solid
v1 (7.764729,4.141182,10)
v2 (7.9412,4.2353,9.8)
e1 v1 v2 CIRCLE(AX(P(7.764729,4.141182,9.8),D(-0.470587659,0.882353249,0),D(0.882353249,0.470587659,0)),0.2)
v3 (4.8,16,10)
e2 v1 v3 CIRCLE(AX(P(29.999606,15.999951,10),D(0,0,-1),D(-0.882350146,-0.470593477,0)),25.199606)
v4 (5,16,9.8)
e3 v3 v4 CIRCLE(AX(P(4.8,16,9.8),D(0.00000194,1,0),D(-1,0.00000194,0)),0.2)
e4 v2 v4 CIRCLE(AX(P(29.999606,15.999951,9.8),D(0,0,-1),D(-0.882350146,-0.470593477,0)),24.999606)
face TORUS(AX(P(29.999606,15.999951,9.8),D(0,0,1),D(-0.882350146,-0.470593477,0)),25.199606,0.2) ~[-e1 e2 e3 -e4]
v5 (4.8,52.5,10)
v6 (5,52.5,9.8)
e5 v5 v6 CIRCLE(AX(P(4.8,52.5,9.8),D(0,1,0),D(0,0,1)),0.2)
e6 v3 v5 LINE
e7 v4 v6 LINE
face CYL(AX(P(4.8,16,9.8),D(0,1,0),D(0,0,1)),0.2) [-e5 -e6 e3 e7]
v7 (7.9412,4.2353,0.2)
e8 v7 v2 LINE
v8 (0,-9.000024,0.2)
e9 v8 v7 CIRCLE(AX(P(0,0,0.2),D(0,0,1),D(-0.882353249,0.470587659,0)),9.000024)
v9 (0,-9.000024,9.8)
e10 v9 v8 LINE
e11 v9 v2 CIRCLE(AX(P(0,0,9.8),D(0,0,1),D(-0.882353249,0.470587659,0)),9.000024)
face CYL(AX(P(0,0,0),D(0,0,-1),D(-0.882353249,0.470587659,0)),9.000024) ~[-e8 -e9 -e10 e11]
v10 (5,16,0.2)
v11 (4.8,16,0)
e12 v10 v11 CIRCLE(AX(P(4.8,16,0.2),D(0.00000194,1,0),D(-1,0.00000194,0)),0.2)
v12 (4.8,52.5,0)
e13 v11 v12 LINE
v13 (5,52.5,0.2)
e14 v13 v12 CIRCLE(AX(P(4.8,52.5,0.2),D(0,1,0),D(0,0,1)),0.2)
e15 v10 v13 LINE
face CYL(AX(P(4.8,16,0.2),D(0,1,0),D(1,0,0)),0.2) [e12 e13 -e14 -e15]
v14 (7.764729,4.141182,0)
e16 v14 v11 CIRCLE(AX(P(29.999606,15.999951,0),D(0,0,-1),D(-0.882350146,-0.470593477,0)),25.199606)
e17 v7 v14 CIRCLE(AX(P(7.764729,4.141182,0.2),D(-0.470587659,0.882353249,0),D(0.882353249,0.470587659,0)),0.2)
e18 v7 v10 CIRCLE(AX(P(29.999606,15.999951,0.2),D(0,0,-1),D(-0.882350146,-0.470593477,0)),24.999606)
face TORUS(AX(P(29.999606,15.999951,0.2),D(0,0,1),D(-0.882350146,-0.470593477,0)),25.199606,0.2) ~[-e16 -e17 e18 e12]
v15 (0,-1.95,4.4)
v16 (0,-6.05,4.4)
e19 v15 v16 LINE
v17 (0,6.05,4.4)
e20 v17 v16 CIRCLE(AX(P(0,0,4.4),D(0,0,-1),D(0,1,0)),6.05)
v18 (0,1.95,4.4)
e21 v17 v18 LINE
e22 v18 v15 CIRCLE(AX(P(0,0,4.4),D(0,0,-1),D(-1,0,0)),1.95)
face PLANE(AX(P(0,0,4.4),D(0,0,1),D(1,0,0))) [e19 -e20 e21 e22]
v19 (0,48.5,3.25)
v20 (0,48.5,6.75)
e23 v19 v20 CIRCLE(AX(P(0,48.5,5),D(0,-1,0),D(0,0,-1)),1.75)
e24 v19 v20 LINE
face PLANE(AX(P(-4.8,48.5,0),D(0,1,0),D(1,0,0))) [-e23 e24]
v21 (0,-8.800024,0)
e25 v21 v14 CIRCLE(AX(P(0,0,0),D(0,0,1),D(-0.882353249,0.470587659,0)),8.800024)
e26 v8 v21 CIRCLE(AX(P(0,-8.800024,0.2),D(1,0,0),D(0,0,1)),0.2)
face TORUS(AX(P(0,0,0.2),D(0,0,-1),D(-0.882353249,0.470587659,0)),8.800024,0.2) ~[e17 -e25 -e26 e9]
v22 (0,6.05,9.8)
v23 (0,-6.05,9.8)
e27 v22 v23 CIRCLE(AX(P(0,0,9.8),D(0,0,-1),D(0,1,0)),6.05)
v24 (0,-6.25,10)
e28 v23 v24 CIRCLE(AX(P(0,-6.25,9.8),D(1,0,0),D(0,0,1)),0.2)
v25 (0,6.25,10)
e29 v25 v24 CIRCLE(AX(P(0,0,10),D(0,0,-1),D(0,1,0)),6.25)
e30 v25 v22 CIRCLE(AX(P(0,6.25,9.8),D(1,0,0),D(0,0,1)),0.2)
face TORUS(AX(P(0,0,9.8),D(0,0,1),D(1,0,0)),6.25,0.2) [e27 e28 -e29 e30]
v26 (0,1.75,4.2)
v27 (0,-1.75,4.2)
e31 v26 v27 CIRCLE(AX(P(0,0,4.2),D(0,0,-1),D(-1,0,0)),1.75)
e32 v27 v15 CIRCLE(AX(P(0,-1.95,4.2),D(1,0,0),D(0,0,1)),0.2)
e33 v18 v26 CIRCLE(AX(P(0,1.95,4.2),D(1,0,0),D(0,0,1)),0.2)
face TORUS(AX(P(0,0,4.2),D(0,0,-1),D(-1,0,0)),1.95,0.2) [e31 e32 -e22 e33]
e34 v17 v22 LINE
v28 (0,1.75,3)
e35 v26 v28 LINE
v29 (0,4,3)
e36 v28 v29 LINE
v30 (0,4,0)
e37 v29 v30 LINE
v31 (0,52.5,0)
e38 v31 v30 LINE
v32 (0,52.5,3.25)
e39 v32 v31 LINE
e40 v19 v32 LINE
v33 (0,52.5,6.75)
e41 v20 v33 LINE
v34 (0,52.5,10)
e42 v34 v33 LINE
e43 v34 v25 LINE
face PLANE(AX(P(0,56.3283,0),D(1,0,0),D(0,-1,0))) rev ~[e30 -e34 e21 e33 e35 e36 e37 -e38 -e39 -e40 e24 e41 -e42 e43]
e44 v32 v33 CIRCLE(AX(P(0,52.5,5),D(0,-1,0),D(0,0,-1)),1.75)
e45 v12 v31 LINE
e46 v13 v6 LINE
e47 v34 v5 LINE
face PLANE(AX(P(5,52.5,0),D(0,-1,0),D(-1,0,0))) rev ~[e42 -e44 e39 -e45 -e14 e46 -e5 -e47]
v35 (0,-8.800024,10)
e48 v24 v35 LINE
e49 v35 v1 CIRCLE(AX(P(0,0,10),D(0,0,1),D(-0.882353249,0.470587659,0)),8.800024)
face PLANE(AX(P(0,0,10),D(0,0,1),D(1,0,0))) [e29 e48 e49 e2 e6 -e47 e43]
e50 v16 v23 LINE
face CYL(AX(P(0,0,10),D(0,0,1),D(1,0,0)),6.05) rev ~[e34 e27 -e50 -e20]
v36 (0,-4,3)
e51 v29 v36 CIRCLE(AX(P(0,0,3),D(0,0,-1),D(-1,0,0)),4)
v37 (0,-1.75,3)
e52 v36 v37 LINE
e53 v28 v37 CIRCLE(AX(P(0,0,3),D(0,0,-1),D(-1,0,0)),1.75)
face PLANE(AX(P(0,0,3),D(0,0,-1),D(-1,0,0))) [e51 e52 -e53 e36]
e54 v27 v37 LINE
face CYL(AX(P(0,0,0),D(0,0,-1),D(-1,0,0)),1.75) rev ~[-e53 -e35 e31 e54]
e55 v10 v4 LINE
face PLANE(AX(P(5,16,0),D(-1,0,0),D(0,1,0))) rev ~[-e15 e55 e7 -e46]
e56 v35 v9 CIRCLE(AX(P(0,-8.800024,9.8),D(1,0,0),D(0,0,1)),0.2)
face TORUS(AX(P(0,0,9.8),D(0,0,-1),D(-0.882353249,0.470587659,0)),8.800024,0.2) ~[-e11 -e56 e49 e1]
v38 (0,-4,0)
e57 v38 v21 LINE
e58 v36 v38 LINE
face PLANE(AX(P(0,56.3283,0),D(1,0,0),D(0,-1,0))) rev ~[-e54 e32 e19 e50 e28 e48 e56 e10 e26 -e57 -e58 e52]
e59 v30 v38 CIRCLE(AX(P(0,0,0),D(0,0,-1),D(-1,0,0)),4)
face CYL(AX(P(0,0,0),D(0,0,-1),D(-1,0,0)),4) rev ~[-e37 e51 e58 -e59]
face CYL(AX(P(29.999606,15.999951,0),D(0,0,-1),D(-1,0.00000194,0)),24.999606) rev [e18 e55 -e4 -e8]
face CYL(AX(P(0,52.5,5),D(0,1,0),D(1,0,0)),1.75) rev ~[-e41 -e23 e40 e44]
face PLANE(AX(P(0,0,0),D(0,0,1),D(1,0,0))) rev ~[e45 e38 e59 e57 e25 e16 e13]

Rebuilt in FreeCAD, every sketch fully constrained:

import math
import FreeCAD as App
import Part
import Sketcher
from FreeCAD import Vector
Q = App.Units.Quantity


def edges_at(feature, points):
    """Names of the edges that pass closest to the given points."""
    edges = feature.Shape.Edges
    near = lambda p: min(range(len(edges)), key=lambda i: edges[i].distToShape(Part.Vertex(*p))[0])
    return sorted({f"Edge{near(p) + 1}" for p in points})

doc = App.newDocument("Part")
body = doc.addObject("PartDesign::Body", "Body")

# Sketch on XY plane
sketch1 = doc.addObject("Sketcher::SketchObject", "Sketch")
body.addObject(sketch1)
sketch1.AttachmentSupport = (doc.XY_Plane, [""])
sketch1.MapMode = "FlatFace"
sketch1.addGeometry([
    Part.LineSegment(Vector(5, 16, 0), Vector(5, 52, 0)),  # 0
    Part.LineSegment(Vector(5, 52, 0), Vector(-5, 52, 0)),  # 1
    Part.LineSegment(Vector(-5, 52, 0), Vector(-5, 16, 0)),  # 2
    Part.ArcOfCircle(Part.Circle(Vector(-30, 16, 0), Vector(0, 0, 1), 25), math.radians(-28), math.radians(0)),  # 3
    Part.ArcOfCircle(Part.Circle(Vector(0, 0, 0), Vector(0, 0, 1), 9), math.radians(152), math.radians(388)),  # 4
    Part.ArcOfCircle(Part.Circle(Vector(30, 16, 0), Vector(0, 0, 1), 25), math.radians(180), math.radians(208)),  # 5
], False)
sketch1.addConstraint([
    Sketcher.Constraint("Coincident", 0, 2, 1, 1),
    Sketcher.Constraint("Coincident", 1, 2, 2, 1),
    Sketcher.Constraint("Tangent", 2, 2, 3, 2),
    Sketcher.Constraint("Tangent", 3, 1, 4, 1),
    Sketcher.Constraint("Tangent", 4, 2, 5, 2),
    Sketcher.Constraint("Tangent", 5, 1, 0, 1),
    Sketcher.Constraint("Vertical", 0),
    Sketcher.Constraint("Horizontal", 1),
    Sketcher.Constraint("Vertical", 2),
    Sketcher.Constraint("Coincident", 4, 3, -1, 1),
    Sketcher.Constraint("Equal", 3, 5),
    Sketcher.Constraint("Horizontal", 3, 3, 5, 3),
    Sketcher.Constraint("Radius", 3, Q("25 mm")),
    Sketcher.Constraint("Radius", 4, Q("9 mm")),
    Sketcher.Constraint("DistanceX", -1, 1, 0, 2, Q("5 mm")),
    Sketcher.Constraint("DistanceY", -1, 1, 0, 2, Q("52.5 mm")),
])
pad1 = doc.addObject("PartDesign::Pad", "Pad")
body.addObject(pad1)
pad1.Profile = sketch1
pad1.Length = 10

# Sketch on XY plane
sketch2 = doc.addObject("Sketcher::SketchObject", "Sketch001")
body.addObject(sketch2)
sketch2.AttachmentSupport = (doc.XY_Plane, [""])
sketch2.MapMode = "FlatFace"
sketch2.AttachmentOffset = App.Placement(Vector(0, 0, 10), App.Rotation())
sketch2.addGeometry(Part.Circle(Vector(0, 0, 0), Vector(0, 0, 1), 6), False)
sketch2.addConstraint([
    Sketcher.Constraint("Coincident", 0, 3, -1, 1),
    Sketcher.Constraint("Diameter", 0, Q("12.1 mm")),
])
pocket1 = doc.addObject("PartDesign::Pocket", "Pocket")
body.addObject(pocket1)
pocket1.Profile = sketch2
pocket1.Length = 5.6
doc.recompute()

fillet = doc.addObject("PartDesign::Fillet", "Fillet")
body.addObject(fillet)
fillet.Base = (pocket1, edges_at(pocket1, [(-6.05, 0, 10)]))
fillet.Radius = 0.2
doc.recompute()

fillet2 = doc.addObject("PartDesign::Fillet", "Fillet001")
body.addObject(fillet2)
fillet2.Base = (fillet, edges_at(fillet, [
    (5, 34.25, 10),
    (0, -9, 10),
    (-5.746, 9.937, 10),
    (-5, 34.25, 10),
    (5.746, 9.937, 10),
    (5, 34.25, 0),
    (0, -9, 0),
    (-5.746, 9.937, 0),
    (-5, 34.25, 0),
    (5.746, 9.937, 0),
]))
fillet2.Radius = 0.2

# Sketch on XY plane
sketch3 = doc.addObject("Sketcher::SketchObject", "Sketch002")
body.addObject(sketch3)
sketch3.AttachmentSupport = (doc.XY_Plane, [""])
sketch3.MapMode = "FlatFace"
sketch3.addGeometry(Part.Circle(Vector(0, 0, 0), Vector(0, 0, 1), 1.8), False)
sketch3.addConstraint([
    Sketcher.Constraint("Coincident", 0, 3, -1, 1),
    Sketcher.Constraint("Diameter", 0, Q("3.5 mm")),
])
pocket2 = doc.addObject("PartDesign::Pocket", "Pocket001")
body.addObject(pocket2)
pocket2.Profile = sketch3
pocket2.Type = "UpToFirst"
pocket2.Reversed = True
doc.recompute()

fillet3 = doc.addObject("PartDesign::Fillet", "Fillet002")
body.addObject(fillet3)
fillet3.Base = (pocket2, edges_at(pocket2, [(1.75, 0, 0), (1.75, 0, 4.4)]))
fillet3.Radius = 0.2

# Sketch on XZ plane
sketch4 = doc.addObject("Sketcher::SketchObject", "Sketch003")
body.addObject(sketch4)
sketch4.AttachmentSupport = (doc.XZ_Plane, [""])
sketch4.MapMode = "FlatFace"
sketch4.AttachmentOffset = App.Placement(Vector(0, 0, -52.5), App.Rotation())
sketch4.addGeometry(Part.Circle(Vector(0, 5, 0), Vector(0, 0, 1), 1.8), False)
sketch4.addConstraint([
    Sketcher.Constraint("PointOnObject", 0, 3, -2),
    Sketcher.Constraint("Diameter", 0, Q("3.5 mm")),
    Sketcher.Constraint("DistanceY", -1, 1, 0, 3, Q("5 mm")),
])
pocket3 = doc.addObject("PartDesign::Pocket", "Pocket002")
body.addObject(pocket3)
pocket3.Profile = sketch4
pocket3.Length = 4
pocket3.Reversed = True

# Sketch on XY plane
sketch5 = doc.addObject("Sketcher::SketchObject", "Sketch004")
body.addObject(sketch5)
sketch5.AttachmentSupport = (doc.XY_Plane, [""])
sketch5.MapMode = "FlatFace"
sketch5.addGeometry(Part.Circle(Vector(0, 0, 0), Vector(0, 0, 1), 4), False)
sketch5.addConstraint([
    Sketcher.Constraint("Coincident", 0, 3, -1, 1),
    Sketcher.Constraint("Diameter", 0, Q("8 mm")),
])
pocket4 = doc.addObject("PartDesign::Pocket", "Pocket003")
body.addObject(pocket4)
pocket4.Profile = sketch5
pocket4.Length = 3
pocket4.Reversed = True

# Sketch on XY plane
sketch6 = doc.addObject("Sketcher::SketchObject", "Sketch005")
body.addObject(sketch6)
sketch6.AttachmentSupport = (doc.XY_Plane, [""])
sketch6.MapMode = "FlatFace"
sketch6.addGeometry([
    Part.LineSegment(Vector(0, 56, 0), Vector(0, -13, 0)),
    Part.LineSegment(Vector(0, -13, 0), Vector(-18, -13, 0)),
    Part.LineSegment(Vector(-18, -13, 0), Vector(-18, 56, 0)),
    Part.LineSegment(Vector(-18, 56, 0), Vector(0, 56, 0)),
], False)
sketch6.addConstraint([
    Sketcher.Constraint("Coincident", 0, 2, 1, 1),
    Sketcher.Constraint("Coincident", 1, 2, 2, 1),
    Sketcher.Constraint("Coincident", 2, 2, 3, 1),
    Sketcher.Constraint("Coincident", 3, 2, 0, 1),
    Sketcher.Constraint("Vertical", 0),
    Sketcher.Constraint("Horizontal", 1),
    Sketcher.Constraint("Vertical", 2),
    Sketcher.Constraint("Horizontal", 3),
    Sketcher.Constraint("PointOnObject", 0, 2, -2),
    Sketcher.Constraint("DistanceY", 0, 2, 0, 1, Q("69.666 mm")),
    Sketcher.Constraint("DistanceX", 1, 2, 1, 1, Q("18.2323 mm")),
    Sketcher.Constraint("DistanceY", 0, 2, -1, 1, Q("13.3377 mm")),
])
pocket5 = doc.addObject("PartDesign::Pocket", "Pocket004")
body.addObject(pocket5)
pocket5.Profile = sketch6
pocket5.Length = 10
pocket5.Reversed = True

doc.recompute()
